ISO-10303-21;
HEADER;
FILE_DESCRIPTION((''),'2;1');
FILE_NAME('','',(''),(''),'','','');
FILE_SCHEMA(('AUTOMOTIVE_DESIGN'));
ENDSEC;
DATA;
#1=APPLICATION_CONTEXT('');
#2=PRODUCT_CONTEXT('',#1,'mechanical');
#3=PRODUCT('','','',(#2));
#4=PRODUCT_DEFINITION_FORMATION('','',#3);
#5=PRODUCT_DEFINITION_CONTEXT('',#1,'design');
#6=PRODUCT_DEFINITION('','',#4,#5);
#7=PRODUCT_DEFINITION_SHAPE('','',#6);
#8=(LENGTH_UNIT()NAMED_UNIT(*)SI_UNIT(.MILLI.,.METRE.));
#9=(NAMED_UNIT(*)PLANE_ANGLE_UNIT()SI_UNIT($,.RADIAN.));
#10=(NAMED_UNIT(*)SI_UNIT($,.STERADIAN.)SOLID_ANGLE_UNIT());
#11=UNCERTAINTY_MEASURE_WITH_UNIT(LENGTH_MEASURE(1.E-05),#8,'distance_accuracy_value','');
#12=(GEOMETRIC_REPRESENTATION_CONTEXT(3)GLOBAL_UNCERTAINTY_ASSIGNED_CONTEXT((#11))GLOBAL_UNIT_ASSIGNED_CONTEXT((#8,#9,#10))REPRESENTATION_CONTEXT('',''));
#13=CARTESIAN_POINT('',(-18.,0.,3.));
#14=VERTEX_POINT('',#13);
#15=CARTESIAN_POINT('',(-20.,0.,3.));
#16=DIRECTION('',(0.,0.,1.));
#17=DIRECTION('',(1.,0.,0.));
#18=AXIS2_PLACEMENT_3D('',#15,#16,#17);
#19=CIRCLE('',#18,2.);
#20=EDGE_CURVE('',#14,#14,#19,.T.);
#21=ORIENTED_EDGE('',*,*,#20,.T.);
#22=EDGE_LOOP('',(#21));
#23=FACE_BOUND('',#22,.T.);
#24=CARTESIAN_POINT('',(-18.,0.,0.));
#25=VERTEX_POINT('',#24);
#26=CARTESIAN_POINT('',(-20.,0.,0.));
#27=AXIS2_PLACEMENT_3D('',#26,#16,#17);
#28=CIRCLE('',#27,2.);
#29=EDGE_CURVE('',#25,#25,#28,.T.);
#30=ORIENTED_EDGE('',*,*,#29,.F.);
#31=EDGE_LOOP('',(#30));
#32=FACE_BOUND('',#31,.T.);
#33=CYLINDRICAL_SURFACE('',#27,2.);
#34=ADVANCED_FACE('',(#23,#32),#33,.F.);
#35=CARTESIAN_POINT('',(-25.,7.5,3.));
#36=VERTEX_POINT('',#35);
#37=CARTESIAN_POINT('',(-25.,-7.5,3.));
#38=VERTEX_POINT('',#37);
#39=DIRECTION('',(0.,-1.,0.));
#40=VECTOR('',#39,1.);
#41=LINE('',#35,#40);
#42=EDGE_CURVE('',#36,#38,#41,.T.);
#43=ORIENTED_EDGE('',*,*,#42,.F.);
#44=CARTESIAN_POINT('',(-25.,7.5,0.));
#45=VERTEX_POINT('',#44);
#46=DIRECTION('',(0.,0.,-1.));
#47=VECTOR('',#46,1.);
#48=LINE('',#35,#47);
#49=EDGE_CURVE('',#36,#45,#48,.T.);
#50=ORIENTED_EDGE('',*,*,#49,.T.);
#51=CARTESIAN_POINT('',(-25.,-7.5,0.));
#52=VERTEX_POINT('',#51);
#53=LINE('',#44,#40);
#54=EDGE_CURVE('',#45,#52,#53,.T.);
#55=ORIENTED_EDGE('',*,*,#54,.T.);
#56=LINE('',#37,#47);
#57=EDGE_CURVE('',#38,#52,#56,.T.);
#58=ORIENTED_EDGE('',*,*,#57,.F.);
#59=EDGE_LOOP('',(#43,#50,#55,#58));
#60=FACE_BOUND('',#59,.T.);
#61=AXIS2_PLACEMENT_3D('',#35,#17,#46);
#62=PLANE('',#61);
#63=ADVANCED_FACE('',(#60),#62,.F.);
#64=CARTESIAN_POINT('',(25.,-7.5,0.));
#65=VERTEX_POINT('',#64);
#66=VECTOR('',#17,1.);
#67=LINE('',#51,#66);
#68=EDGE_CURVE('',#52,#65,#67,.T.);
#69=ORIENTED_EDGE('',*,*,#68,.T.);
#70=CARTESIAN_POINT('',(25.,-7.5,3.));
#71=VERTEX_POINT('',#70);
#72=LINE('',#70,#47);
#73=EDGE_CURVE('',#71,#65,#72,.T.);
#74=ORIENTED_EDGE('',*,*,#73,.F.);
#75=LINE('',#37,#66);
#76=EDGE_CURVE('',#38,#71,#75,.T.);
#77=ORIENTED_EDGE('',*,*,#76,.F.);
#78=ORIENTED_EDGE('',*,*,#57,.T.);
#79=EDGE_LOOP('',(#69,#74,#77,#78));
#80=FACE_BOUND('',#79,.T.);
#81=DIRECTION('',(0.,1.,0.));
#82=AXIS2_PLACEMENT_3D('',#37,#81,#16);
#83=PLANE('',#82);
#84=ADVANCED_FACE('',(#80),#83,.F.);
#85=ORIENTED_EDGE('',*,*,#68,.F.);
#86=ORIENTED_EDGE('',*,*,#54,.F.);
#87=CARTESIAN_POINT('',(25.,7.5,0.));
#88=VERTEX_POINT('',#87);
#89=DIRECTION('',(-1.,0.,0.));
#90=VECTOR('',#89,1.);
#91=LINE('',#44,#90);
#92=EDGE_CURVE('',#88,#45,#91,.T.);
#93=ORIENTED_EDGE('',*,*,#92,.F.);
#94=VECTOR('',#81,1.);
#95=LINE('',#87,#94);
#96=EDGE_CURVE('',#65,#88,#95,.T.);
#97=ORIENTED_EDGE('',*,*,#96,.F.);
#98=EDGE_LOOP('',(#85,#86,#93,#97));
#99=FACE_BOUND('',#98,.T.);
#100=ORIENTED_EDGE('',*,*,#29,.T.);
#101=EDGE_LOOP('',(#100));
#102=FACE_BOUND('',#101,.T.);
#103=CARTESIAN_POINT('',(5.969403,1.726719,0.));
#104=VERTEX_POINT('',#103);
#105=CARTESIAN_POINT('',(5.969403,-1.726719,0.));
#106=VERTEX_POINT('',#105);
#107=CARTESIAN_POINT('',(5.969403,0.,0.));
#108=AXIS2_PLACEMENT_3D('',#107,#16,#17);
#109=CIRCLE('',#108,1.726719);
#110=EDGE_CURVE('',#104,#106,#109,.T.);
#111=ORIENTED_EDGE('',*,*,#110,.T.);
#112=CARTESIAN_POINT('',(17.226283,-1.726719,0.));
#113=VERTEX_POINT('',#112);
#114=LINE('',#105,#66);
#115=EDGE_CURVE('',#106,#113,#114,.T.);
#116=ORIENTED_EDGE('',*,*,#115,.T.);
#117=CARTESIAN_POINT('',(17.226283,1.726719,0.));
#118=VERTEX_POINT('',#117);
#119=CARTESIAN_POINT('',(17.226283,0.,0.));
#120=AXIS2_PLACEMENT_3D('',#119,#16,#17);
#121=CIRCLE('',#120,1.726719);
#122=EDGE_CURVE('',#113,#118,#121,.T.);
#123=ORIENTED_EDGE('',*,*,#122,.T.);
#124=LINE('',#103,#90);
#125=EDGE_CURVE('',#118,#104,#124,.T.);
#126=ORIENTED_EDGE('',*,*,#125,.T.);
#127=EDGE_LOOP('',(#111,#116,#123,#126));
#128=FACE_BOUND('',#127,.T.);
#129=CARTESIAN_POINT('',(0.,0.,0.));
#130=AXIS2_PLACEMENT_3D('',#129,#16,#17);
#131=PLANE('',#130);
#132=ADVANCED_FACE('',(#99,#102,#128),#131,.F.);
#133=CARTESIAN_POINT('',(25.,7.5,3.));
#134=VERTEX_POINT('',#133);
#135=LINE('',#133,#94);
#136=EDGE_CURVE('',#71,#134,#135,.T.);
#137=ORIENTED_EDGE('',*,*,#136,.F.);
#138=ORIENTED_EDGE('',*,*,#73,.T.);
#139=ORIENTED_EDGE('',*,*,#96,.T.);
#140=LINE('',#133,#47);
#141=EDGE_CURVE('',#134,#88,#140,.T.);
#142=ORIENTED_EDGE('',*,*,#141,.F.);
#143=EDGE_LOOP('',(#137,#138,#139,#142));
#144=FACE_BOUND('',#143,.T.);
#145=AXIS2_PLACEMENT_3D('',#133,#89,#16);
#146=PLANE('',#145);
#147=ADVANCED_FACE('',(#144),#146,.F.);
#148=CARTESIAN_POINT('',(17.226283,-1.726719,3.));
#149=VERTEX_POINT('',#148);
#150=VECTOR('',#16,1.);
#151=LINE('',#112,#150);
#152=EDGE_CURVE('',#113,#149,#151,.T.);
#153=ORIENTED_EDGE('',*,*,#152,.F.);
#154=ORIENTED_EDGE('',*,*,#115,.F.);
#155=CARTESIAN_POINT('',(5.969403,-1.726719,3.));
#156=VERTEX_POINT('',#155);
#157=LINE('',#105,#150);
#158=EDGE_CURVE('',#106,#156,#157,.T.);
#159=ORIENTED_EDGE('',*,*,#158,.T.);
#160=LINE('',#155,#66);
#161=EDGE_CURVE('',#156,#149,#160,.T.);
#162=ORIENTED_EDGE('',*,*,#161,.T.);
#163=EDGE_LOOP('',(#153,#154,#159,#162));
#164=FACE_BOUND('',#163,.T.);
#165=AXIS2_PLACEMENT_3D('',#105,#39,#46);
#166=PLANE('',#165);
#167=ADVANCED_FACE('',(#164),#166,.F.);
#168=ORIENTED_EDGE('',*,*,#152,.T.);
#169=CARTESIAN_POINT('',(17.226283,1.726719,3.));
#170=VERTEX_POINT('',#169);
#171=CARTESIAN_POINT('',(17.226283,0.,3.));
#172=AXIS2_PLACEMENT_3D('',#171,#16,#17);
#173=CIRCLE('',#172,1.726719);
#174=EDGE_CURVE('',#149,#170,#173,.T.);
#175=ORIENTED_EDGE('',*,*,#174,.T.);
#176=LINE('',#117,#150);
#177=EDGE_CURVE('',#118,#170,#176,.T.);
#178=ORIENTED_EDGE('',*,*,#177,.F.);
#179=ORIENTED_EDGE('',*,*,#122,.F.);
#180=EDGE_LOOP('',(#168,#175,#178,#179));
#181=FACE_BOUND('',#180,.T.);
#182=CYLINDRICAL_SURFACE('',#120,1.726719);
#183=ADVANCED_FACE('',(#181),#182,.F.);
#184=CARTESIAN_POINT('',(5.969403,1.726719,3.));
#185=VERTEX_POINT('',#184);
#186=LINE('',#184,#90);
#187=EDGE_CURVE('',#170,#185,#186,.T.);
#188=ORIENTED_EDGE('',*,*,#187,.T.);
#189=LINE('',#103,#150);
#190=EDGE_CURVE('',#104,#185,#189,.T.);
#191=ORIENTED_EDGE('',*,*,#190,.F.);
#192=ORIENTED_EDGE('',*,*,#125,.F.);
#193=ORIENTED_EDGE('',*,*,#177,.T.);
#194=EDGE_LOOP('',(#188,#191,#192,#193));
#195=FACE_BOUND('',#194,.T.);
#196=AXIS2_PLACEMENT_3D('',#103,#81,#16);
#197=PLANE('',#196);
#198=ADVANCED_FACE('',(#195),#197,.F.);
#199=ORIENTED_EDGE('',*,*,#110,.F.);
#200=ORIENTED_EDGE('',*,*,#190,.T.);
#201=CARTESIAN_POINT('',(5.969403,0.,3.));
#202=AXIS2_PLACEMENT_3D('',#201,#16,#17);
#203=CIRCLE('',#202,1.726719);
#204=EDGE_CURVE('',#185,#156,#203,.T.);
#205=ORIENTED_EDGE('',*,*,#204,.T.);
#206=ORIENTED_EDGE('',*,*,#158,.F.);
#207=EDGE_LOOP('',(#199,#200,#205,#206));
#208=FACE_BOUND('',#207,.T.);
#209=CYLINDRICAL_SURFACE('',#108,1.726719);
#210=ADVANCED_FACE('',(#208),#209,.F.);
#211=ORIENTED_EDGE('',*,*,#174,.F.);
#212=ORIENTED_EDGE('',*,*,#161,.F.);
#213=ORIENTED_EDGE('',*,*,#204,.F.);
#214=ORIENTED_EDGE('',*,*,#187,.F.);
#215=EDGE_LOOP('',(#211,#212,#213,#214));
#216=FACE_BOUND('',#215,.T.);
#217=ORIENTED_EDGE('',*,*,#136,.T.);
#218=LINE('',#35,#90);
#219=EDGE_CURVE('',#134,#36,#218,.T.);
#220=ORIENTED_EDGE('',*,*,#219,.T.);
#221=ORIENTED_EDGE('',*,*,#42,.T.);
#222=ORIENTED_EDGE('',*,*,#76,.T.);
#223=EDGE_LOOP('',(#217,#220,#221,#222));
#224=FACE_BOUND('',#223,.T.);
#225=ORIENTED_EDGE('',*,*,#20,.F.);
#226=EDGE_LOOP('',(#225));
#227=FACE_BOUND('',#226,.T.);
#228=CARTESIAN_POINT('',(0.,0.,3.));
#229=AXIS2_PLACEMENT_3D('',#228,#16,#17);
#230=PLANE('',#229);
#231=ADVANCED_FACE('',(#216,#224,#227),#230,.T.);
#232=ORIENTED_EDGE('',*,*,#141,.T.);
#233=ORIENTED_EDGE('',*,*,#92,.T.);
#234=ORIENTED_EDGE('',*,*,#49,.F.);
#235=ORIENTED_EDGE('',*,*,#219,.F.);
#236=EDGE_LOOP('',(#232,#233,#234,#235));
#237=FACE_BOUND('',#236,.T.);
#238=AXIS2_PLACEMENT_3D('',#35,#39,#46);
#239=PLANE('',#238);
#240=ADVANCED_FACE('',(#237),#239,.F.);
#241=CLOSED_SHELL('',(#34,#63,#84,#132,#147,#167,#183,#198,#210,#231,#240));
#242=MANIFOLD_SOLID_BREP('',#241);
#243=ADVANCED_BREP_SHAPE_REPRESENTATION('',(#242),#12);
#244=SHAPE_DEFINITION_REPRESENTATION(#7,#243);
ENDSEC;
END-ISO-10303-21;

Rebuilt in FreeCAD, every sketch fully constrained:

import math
import FreeCAD as App
import Part
import Sketcher
from FreeCAD import Vector
Q = App.Units.Quantity

doc = App.newDocument("Part")
params = doc.addObject("Spreadsheet::Sheet", "Params")
for row, (alias, value) in enumerate([
    ("sketch1_width", "50 mm"),
    ("sketch1_height", "15 mm"),
    ("pad1_length", "3 mm"),
    ("sketch2_diameter", "4 mm"),
    ("pocket1_length", "3 mm"),
    ("pocket2_length", "3 mm"),
], start=1):
    params.set(f"A{row}", alias)
    params.set(f"B{row}", "=" + value)
    params.setAlias(f"B{row}", alias)

body = doc.addObject("PartDesign::Body", "Body")

# Sketch on XY plane
sketch1 = doc.addObject("Sketcher::SketchObject", "Sketch")
body.addObject(sketch1)
sketch1.AttachmentSupport = (doc.XY_Plane, [""])
sketch1.MapMode = "FlatFace"
sketch1.addGeometry([
    Part.LineSegment(Vector(-25, 8, 0), Vector(-25, -8, 0)),
    Part.LineSegment(Vector(-25, -8, 0), Vector(25, -8, 0)),
    Part.LineSegment(Vector(25, -8, 0), Vector(25, 8, 0)),
    Part.LineSegment(Vector(25, 8, 0), Vector(-25, 8, 0)),
], False)
sketch1.addConstraint([
    Sketcher.Constraint("Coincident", 0, 2, 1, 1),
    Sketcher.Constraint("Coincident", 1, 2, 2, 1),
    Sketcher.Constraint("Coincident", 2, 2, 3, 1),
    Sketcher.Constraint("Coincident", 3, 2, 0, 1),
    Sketcher.Constraint("Vertical", 0),
    Sketcher.Constraint("Horizontal", 1),
    Sketcher.Constraint("Vertical", 2),
    Sketcher.Constraint("Horizontal", 3),
    Sketcher.Constraint("Symmetric", 0, 2, 2, 2, -1, 1),
    Sketcher.Constraint("DistanceX", 1, 1, 1, 2, Q("50 mm")),
    Sketcher.Constraint("DistanceY", 0, 2, 0, 1, Q("15 mm")),
])
sketch1.setExpression("Constraints[9]", "Params.sketch1_width")
sketch1.setExpression("Constraints[10]", "Params.sketch1_height")
pad1 = doc.addObject("PartDesign::Pad", "Pad")
body.addObject(pad1)
pad1.Profile = sketch1
pad1.setExpression("Length", "Params.pad1_length")

# Sketch on XY plane
sketch2 = doc.addObject("Sketcher::SketchObject", "Sketch001")
body.addObject(sketch2)
sketch2.AttachmentSupport = (doc.XY_Plane, [""])
sketch2.MapMode = "FlatFace"
sketch2.AttachmentOffset = App.Placement(Vector(0, 0, 3), App.Rotation())
sketch2.addGeometry(Part.Circle(Vector(-20, 0, 0), Vector(0, 0, 1), 2), False)
sketch2.addConstraint([
    Sketcher.Constraint("PointOnObject", 0, 3, -1),
    Sketcher.Constraint("Diameter", 0, Q("4 mm")),
    Sketcher.Constraint("DistanceX", 0, 3, -1, 1, Q("20 mm")),
])
sketch2.setExpression("Constraints[1]", "Params.sketch2_diameter")
pocket1 = doc.addObject("PartDesign::Pocket", "Pocket")
body.addObject(pocket1)
pocket1.Profile = sketch2
pocket1.setExpression("Length", "Params.pocket1_length")

# Sketch on XY plane
sketch3 = doc.addObject("Sketcher::SketchObject", "Sketch002")
body.addObject(sketch3)
sketch3.AttachmentSupport = (doc.XY_Plane, [""])
sketch3.MapMode = "FlatFace"
sketch3.AttachmentOffset = App.Placement(Vector(0, 0, 3), App.Rotation())
sketch3.addGeometry([
    Part.LineSegment(Vector(17.2, 1.7, 0), Vector(6, 1.7, 0)),
    Part.ArcOfCircle(Part.Circle(Vector(6, 0, 0), Vector(0, 0, 1), 1.7), math.radians(90), math.radians(270)),
    Part.LineSegment(Vector(6, -1.7, 0), Vector(17.2, -1.7, 0)),
    Part.ArcOfCircle(Part.Circle(Vector(17.2, 0, 0), Vector(0, 0, 1), 1.7), math.radians(-90), math.radians(90)),
], False)
sketch3.addConstraint([
    Sketcher.Constraint("Tangent", 0, 2, 1, 1),
    Sketcher.Constraint("Tangent", 1, 2, 2, 1),
    Sketcher.Constraint("Tangent", 2, 2, 3, 1),
    Sketcher.Constraint("Tangent", 3, 2, 0, 1),
    Sketcher.Constraint("Horizontal", 0),
    Sketcher.Constraint("Horizontal", 2),
    Sketcher.Constraint("PointOnObject", 1, 3, -1),
    Sketcher.Constraint("Radius", 1, Q("1.726719 mm")),
    Sketcher.Constraint("DistanceX", 0, 2, 0, 1, Q("11.256879 mm")),
    Sketcher.Constraint("DistanceX", -1, 1, 1, 3, Q("5.969403 mm")),
])
pocket2 = doc.addObject("PartDesign::Pocket", "Pocket001")
body.addObject(pocket2)
pocket2.Profile = sketch3
pocket2.setExpression("Length", "Params.pocket2_length")

doc.recompute()
